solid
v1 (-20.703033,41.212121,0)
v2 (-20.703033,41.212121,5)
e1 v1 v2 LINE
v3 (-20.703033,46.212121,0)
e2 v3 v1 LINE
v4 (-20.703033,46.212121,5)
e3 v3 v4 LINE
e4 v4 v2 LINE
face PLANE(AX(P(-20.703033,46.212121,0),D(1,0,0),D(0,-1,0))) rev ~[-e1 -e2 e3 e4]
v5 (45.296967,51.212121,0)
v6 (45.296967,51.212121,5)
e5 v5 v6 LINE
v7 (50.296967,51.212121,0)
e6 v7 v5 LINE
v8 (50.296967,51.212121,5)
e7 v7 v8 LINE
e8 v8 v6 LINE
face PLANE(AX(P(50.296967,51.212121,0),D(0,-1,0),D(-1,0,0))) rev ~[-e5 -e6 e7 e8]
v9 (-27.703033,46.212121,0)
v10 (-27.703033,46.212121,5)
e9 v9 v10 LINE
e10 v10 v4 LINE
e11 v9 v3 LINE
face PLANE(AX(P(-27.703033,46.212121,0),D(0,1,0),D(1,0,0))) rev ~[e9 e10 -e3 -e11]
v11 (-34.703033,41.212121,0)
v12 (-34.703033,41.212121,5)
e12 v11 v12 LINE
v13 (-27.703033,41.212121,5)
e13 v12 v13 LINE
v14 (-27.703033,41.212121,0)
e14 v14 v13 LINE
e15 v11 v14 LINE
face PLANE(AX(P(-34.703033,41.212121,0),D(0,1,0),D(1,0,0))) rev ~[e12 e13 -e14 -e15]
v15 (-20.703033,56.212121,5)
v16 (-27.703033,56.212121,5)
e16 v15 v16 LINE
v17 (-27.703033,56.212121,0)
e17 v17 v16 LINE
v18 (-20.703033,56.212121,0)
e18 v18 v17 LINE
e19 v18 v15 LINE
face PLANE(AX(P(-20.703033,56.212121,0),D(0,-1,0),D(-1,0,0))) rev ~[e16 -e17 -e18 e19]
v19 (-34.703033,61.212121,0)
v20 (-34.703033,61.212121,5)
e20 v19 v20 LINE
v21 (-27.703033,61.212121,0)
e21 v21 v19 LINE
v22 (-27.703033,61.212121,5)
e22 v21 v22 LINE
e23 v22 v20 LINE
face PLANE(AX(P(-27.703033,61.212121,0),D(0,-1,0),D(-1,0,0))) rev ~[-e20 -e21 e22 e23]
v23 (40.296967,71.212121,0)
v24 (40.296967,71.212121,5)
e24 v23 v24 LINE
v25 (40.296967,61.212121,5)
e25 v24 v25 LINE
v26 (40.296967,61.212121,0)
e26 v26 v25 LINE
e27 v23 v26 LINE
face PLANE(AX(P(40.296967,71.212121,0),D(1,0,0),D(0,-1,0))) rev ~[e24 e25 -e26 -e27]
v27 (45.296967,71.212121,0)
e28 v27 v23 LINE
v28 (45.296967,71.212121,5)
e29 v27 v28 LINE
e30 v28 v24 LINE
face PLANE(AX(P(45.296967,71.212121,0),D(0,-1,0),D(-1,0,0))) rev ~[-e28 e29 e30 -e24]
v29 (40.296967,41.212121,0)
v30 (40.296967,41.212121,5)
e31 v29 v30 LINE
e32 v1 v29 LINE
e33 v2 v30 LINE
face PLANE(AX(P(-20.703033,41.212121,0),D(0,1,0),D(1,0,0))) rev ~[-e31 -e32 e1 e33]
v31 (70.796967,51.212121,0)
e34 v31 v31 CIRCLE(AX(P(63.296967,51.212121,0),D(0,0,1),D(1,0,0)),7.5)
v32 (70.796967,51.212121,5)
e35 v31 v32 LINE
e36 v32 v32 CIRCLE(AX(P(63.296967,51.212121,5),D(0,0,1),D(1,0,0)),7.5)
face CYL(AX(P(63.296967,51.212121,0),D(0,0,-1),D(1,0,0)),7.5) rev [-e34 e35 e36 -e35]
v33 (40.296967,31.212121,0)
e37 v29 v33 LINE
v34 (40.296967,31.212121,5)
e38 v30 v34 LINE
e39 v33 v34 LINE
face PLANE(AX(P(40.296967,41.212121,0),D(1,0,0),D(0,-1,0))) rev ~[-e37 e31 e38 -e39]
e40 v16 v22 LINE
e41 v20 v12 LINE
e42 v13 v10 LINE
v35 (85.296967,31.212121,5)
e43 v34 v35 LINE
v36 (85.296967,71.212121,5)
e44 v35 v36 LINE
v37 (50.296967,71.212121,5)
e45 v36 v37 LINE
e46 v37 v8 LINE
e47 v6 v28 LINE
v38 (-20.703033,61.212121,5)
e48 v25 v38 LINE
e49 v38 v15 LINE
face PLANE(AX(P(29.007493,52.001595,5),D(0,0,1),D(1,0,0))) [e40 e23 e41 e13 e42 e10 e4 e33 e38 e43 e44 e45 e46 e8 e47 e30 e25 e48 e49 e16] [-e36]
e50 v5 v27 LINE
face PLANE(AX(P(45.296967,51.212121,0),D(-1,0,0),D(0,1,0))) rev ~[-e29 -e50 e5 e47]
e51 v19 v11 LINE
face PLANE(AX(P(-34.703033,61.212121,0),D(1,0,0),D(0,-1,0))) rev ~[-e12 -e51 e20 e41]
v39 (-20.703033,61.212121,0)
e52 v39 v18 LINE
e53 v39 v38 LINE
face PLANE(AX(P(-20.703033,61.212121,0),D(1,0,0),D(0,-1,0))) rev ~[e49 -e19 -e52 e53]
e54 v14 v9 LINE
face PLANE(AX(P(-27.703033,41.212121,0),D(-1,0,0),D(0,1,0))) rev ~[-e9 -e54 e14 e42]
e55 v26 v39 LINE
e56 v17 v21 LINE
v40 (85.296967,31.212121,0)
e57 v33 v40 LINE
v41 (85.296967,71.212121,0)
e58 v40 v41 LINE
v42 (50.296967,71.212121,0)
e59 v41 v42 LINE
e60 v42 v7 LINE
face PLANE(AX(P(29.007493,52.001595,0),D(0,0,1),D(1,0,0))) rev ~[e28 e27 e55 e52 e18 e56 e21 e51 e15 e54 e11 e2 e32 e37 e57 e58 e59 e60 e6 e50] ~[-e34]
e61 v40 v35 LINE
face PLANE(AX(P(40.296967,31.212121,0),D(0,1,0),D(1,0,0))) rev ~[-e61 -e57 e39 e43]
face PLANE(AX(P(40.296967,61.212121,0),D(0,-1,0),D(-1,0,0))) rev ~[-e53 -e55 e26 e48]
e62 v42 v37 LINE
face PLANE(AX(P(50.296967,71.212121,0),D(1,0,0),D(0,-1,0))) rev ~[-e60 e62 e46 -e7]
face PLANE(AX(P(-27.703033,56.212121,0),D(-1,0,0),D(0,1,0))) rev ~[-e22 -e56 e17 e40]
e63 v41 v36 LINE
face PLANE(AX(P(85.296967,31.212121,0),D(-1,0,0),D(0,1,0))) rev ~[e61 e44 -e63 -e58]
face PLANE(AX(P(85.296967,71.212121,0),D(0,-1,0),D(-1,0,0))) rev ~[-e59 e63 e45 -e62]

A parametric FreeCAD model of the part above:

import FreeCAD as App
import Part
import Sketcher

doc = App.newDocument("Part")
body = doc.addObject("PartDesign::Body", "Body")

sketch1 = doc.addObject("Sketcher::SketchObject", "Sketch")
body.addObject(sketch1)
sketch1.AttachmentSupport = (doc.XY_Plane, [""])
sketch1.MapMode = "FlatFace"
sketch1.addGeometry([
    Part.LineSegment(App.Vector(50, 71, 0), App.Vector(50, 51, 0)),
    Part.LineSegment(App.Vector(50, 51, 0), App.Vector(45, 51, 0)),
    Part.LineSegment(App.Vector(45, 51, 0), App.Vector(45, 71, 0)),
    Part.LineSegment(App.Vector(45, 71, 0), App.Vector(40, 71, 0)),
    Part.LineSegment(App.Vector(40, 71, 0), App.Vector(40, 61, 0)),
    Part.LineSegment(App.Vector(40, 61, 0), App.Vector(-21, 61, 0)),
    Part.LineSegment(App.Vector(-21, 61, 0), App.Vector(-21, 56, 0)),
    Part.LineSegment(App.Vector(-21, 56, 0), App.Vector(-28, 56, 0)),
    Part.LineSegment(App.Vector(-28, 56, 0), App.Vector(-28, 61, 0)),
    Part.LineSegment(App.Vector(-28, 61, 0), App.Vector(-35, 61, 0)),
    Part.LineSegment(App.Vector(-35, 61, 0), App.Vector(-35, 41, 0)),
    Part.LineSegment(App.Vector(-35, 41, 0), App.Vector(-28, 41, 0)),
    Part.LineSegment(App.Vector(-28, 41, 0), App.Vector(-28, 46, 0)),
    Part.LineSegment(App.Vector(-28, 46, 0), App.Vector(-21, 46, 0)),
    Part.LineSegment(App.Vector(-21, 46, 0), App.Vector(-21, 41, 0)),
    Part.LineSegment(App.Vector(-21, 41, 0), App.Vector(40, 41, 0)),
    Part.LineSegment(App.Vector(40, 41, 0), App.Vector(40, 31, 0)),
    Part.LineSegment(App.Vector(40, 31, 0), App.Vector(85, 31, 0)),
    Part.LineSegment(App.Vector(85, 31, 0), App.Vector(85, 71, 0)),
    Part.LineSegment(App.Vector(85, 71, 0), App.Vector(50, 71, 0)),
    Part.Circle(App.Vector(63, 51, 0), App.Vector(0, 0, 1), 8),
], False)
sketch1.addConstraint([
    Sketcher.Constraint("Coincident", 0, 2, 1, 1),
    Sketcher.Constraint("Coincident", 1, 2, 2, 1),
    Sketcher.Constraint("Coincident", 2, 2, 3, 1),
    Sketcher.Constraint("Coincident", 3, 2, 4, 1),
    Sketcher.Constraint("Coincident", 4, 2, 5, 1),
    Sketcher.Constraint("Coincident", 5, 2, 6, 1),
    Sketcher.Constraint("Coincident", 6, 2, 7, 1),
    Sketcher.Constraint("Coincident", 7, 2, 8, 1),
    Sketcher.Constraint("Coincident", 8, 2, 9, 1),
    Sketcher.Constraint("Coincident", 9, 2, 10, 1),
    Sketcher.Constraint("Coincident", 10, 2, 11, 1),
    Sketcher.Constraint("Coincident", 11, 2, 12, 1),
    Sketcher.Constraint("Coincident", 12, 2, 13, 1),
    Sketcher.Constraint("Coincident", 13, 2, 14, 1),
    Sketcher.Constraint("Coincident", 14, 2, 15, 1),
    Sketcher.Constraint("Coincident", 15, 2, 16, 1),
    Sketcher.Constraint("Coincident", 16, 2, 17, 1),
    Sketcher.Constraint("Coincident", 17, 2, 18, 1),
    Sketcher.Constraint("Coincident", 18, 2, 19, 1),
    Sketcher.Constraint("Coincident", 19, 2, 0, 1),
    Sketcher.Constraint("Vertical", 0),
    Sketcher.Constraint("Horizontal", 1),
    Sketcher.Constraint("Vertical", 2),
    Sketcher.Constraint("Horizontal", 3),
    Sketcher.Constraint("Vertical", 4),
    Sketcher.Constraint("Horizontal", 5),
    Sketcher.Constraint("Vertical", 6),
    Sketcher.Constraint("Horizontal", 7),
    Sketcher.Constraint("Vertical", 8),
    Sketcher.Constraint("Horizontal", 9),
    Sketcher.Constraint("Vertical", 10),
    Sketcher.Constraint("Horizontal", 11),
    Sketcher.Constraint("Vertical", 12),
    Sketcher.Constraint("Horizontal", 13),
    Sketcher.Constraint("Vertical", 14),
    Sketcher.Constraint("Horizontal", 15),
    Sketcher.Constraint("Vertical", 16),
    Sketcher.Constraint("Horizontal", 17),
    Sketcher.Constraint("Vertical", 18),
    Sketcher.Constraint("Horizontal", 19),
    Sketcher.Constraint("Horizontal", 20, 3, 0, 2),
    Sketcher.Constraint("Horizontal", 5, 2, 8, 2),
    Sketcher.Constraint("Horizontal", 11, 2, 14, 2),
    Sketcher.Constraint("Horizontal", 3, 2, 18, 2),
    Sketcher.Constraint("Vertical", 8, 2, 11, 2),
    Sketcher.Constraint("Vertical", 6, 2, 13, 2),
    Sketcher.Constraint("Vertical", 4, 2, 15, 2),
    Sketcher.Constraint("Equal", 1, 3),
    Sketcher.Constraint("Equal", 7, 9),
    Sketcher.Constraint("Equal", 3, 6),
    Sketcher.Constraint("Equal", 2, 10),
    Sketcher.Constraint("Equal", 8, 12),
    Sketcher.Constraint("Equal", 4, 16),
    Sketcher.Constraint("Diameter", 20, 15.0),
    Sketcher.Constraint("DistanceX", 1, 2, 1, 1, 5.0),
    Sketcher.Constraint("DistanceX", 5, 2, 5, 1, 61.0),
    Sketcher.Constraint("DistanceX", 7, 2, 7, 1, 7.0),
    Sketcher.Constraint("DistanceX", 17, 1, 17, 2, 45.0),
    Sketcher.Constraint("DistanceY", 0, 2, 0, 1, 20.0),
    Sketcher.Constraint("DistanceY", 4, 2, 4, 1, 10.0),
    Sketcher.Constraint("DistanceX", 0, 2, 20, 3, 13.0),
    Sketcher.Constraint("DistanceY", -1, 1, 20, 3, 51.212121),
    Sketcher.Constraint("DistanceX", -1, 1, 20, 3, 63.296967),
])
pad1 = doc.addObject("PartDesign::Pad", "Pad")
body.addObject(pad1)
pad1.Profile = sketch1
pad1.Length = 5

doc.recompute()
